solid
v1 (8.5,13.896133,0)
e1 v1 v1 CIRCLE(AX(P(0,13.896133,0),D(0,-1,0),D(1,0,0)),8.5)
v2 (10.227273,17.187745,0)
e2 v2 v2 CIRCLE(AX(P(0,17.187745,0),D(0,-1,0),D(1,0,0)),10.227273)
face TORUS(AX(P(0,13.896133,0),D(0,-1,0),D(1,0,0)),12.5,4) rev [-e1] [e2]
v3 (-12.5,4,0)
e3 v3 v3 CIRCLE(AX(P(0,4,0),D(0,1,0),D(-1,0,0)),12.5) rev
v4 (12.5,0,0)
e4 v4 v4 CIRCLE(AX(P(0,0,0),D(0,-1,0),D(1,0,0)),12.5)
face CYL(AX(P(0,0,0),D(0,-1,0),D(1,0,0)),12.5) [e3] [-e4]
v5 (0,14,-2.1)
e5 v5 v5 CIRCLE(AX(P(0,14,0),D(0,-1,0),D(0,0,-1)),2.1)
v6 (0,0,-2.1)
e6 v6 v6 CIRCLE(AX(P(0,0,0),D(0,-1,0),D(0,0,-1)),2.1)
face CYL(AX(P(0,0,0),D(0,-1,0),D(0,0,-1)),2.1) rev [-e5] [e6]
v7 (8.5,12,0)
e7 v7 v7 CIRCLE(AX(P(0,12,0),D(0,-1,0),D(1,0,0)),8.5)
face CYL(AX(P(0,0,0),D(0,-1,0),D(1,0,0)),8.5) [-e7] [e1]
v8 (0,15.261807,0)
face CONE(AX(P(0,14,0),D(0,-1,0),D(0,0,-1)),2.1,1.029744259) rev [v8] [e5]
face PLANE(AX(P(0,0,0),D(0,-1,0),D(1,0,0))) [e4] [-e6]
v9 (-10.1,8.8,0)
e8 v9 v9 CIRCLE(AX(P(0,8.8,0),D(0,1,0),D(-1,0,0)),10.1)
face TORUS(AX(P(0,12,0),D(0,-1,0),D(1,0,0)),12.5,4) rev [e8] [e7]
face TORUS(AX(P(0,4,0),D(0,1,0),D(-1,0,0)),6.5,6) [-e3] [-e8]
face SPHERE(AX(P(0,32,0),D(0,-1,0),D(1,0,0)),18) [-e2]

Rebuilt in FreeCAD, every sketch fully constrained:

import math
import FreeCAD as App
import Part
import Sketcher

V = App.Vector


def edges_at(feature, points):
    """Names of the edges that pass closest to the given points."""
    edges = feature.Shape.Edges
    near = lambda p: min(range(len(edges)), key=lambda i: edges[i].distToShape(Part.Vertex(*p))[0])
    return sorted({f"Edge{near(p) + 1}" for p in points})

doc = App.newDocument("Part")
body = doc.addObject("PartDesign::Body", "Body")

sketch1 = body.newObject("Sketcher::SketchObject", "Sketch")
sketch1.AttachmentSupport = (doc.getObject("XY_Plane"), [""])
sketch1.MapMode = "FlatFace"
sketch1.addGeometry([
    Part.LineSegment(V(0, 0, 0), V(12.5, 0, 0)),
    Part.LineSegment(V(12.5, 0, 0), V(12.5, 8, 0)),
    Part.ArcOfCircle(Part.Circle(V(12.5, 12, 0), V(0, 0, 1), 4), math.radians(180), math.radians(270)),
    Part.LineSegment(V(8.5, 12, 0), V(8.5, 13.896133, 0)),
    Part.ArcOfCircle(Part.Circle(V(12.5, 13.896133, 0), V(0, 0, 1), 4), math.radians(124.623536), math.radians(180)),
    Part.ArcOfCircle(Part.Circle(V(0, 32, 0), V(0, 0, 1), 18), math.radians(-55.376465), math.radians(90)),
    Part.LineSegment(V(0, 50, 0), V(0, 0, 0)),
], False)
sketch1.addConstraint([
    Sketcher.Constraint("Coincident", 0, 2, 1, 1),
    Sketcher.Constraint("Coincident", 1, 2, 2, 2),
    Sketcher.Constraint("Tangent", 2, 1, 3, 1),
    Sketcher.Constraint("Tangent", 3, 2, 4, 2),
    Sketcher.Constraint("Tangent", 4, 1, 5, 1),
    Sketcher.Constraint("Coincident", 5, 2, 6, 1),
    Sketcher.Constraint("Coincident", 6, 2, 0, 1),
    Sketcher.Constraint("Horizontal", 0),
    Sketcher.Constraint("Vertical", 1),
    Sketcher.Constraint("Vertical", 3),
    Sketcher.Constraint("Vertical", 6),
    Sketcher.Constraint("Coincident", 6, 2, -1, 1),
    Sketcher.Constraint("Equal", 2, 4),
    Sketcher.Constraint("PointOnObject", 5, 3, -2),
    Sketcher.Constraint("Vertical", 4, 3, 0, 2),
    Sketcher.Constraint("Radius", 2, 4.0),
    Sketcher.Constraint("Radius", 5, 18.0),
    Sketcher.Constraint("DistanceY", 1, 1, 1, 2, 8.0),
    Sketcher.Constraint("DistanceY", 6, 2, 6, 1, 50.0),
    Sketcher.Constraint("DistanceX", 0, 1, 0, 2, 12.5),
])
revolution = body.newObject("PartDesign::Revolution", "Revolution")
revolution.Profile = sketch1
revolution.ReferenceAxis = (sketch1, ["V_Axis"])
revolution.Angle = 360
doc.recompute()

fillet = body.newObject("PartDesign::Fillet", "Fillet")
fillet.Base = (revolution, edges_at(revolution, [(-12.5, 8, 0)]))
fillet.Radius = 6

sketch2 = body.newObject("Sketcher::SketchObject", "Sketch001")
sketch2.AttachmentSupport = (doc.getObject("XZ_Plane"), [""])
sketch2.MapMode = "FlatFace"
sketch2.addGeometry(Part.Circle(V(0, 0, 0), V(0, 0, 1), 2.1), False)
sketch2.addConstraint([
    Sketcher.Constraint("Coincident", 0, 3, -1, 1),
    Sketcher.Constraint("Diameter", 0, 4.2),
])
doc.recompute()
hole = body.newObject("PartDesign::Hole", "Hole")
hole.Profile = sketch2
hole.ThreadType = "None"
hole.Diameter = 4.2
hole.DepthType = "Dimension"
hole.Depth = 14
hole.DrillPoint = "Angled"
hole.DrillPointAngle = 118

doc.recompute()
